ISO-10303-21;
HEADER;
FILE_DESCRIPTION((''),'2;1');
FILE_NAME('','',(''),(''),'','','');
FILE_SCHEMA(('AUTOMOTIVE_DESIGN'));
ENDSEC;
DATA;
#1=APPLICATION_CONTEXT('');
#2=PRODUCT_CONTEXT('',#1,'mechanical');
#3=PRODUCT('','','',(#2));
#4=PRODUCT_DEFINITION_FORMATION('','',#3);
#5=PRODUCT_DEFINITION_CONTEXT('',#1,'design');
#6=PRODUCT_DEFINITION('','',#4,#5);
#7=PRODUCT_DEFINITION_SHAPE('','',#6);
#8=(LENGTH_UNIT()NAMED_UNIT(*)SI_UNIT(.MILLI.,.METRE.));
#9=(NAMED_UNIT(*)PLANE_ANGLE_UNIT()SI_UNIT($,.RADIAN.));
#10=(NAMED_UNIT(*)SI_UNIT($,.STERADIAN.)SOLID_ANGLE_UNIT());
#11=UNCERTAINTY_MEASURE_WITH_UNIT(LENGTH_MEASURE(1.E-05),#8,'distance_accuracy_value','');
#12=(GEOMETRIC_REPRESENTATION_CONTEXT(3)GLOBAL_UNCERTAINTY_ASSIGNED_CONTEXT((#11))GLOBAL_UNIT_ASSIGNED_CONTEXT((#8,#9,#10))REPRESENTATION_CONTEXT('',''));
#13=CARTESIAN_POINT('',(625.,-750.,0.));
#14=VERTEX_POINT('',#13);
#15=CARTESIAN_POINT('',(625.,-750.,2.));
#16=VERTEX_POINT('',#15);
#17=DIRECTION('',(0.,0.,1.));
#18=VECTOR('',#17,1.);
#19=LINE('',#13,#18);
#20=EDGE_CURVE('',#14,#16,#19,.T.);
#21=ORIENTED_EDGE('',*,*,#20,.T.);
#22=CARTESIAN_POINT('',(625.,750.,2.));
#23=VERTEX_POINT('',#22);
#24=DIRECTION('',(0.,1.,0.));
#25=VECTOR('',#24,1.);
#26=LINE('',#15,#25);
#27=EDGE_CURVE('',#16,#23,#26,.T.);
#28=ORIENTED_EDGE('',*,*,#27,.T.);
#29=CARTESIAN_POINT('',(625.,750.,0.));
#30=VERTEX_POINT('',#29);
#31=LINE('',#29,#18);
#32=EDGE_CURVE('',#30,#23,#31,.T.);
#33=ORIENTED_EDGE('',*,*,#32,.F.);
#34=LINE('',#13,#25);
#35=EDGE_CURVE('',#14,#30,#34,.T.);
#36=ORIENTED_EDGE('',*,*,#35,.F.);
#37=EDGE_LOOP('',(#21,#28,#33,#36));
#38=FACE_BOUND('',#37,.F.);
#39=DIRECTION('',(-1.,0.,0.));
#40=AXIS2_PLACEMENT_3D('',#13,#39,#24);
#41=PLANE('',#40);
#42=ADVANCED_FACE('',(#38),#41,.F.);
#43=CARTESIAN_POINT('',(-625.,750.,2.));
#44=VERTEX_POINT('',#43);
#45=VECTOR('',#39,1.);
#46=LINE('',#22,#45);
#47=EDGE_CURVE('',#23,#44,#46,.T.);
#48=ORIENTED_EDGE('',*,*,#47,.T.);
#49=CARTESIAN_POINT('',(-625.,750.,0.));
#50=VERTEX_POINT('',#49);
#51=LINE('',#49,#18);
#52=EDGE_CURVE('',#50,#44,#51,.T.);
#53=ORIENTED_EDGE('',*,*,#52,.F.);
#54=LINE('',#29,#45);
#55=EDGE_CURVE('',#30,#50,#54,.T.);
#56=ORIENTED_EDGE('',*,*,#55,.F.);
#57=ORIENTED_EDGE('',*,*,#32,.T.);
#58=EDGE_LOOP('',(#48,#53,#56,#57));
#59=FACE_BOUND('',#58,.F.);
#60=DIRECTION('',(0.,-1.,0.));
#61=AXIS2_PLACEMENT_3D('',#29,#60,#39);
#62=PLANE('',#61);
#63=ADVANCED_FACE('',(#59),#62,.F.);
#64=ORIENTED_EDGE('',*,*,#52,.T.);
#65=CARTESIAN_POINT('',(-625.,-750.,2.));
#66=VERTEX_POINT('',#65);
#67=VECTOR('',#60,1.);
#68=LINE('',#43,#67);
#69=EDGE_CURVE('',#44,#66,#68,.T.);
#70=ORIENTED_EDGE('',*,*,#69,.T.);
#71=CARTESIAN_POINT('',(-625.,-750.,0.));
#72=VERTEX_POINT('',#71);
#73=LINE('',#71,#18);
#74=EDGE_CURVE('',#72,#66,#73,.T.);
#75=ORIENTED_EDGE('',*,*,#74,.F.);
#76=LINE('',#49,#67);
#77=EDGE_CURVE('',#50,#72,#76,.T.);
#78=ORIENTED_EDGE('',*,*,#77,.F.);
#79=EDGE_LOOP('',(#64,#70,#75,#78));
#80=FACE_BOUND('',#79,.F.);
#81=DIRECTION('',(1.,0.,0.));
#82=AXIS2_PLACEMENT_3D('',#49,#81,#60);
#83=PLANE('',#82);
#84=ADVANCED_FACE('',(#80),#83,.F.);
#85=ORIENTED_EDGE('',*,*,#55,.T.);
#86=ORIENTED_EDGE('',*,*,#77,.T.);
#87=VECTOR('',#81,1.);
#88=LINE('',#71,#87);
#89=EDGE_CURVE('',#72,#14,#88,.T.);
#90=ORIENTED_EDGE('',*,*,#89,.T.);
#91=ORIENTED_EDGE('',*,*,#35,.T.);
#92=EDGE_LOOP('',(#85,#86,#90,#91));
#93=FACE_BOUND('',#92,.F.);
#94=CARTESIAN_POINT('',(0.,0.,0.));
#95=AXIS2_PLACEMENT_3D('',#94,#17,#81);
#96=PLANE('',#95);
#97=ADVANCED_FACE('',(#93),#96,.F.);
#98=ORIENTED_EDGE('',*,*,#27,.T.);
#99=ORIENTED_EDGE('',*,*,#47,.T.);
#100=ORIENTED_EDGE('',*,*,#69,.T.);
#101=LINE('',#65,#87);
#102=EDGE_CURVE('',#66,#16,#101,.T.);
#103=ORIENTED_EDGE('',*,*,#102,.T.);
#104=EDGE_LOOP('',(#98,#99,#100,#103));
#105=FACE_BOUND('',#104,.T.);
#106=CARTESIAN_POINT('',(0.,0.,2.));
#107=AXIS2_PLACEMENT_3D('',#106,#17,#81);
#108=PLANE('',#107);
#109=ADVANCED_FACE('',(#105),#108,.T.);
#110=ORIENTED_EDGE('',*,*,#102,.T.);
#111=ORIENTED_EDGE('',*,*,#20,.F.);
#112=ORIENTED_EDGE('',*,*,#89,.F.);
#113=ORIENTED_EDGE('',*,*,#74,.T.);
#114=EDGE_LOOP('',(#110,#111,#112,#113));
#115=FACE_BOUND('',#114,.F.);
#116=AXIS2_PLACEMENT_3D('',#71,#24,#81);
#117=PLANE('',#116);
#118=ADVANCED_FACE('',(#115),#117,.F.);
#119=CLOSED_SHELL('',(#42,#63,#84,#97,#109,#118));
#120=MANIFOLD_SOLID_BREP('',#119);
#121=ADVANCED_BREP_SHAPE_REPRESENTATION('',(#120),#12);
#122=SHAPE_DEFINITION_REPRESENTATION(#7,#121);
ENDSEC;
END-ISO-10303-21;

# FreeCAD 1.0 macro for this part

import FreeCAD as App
import Part
import Sketcher


def add_polygon(sketch, points):
    """Adds a closed chain of lines whose ends are joined by coincident constraints."""
    first, n = sketch.GeometryCount, len(points)
    for a, b in zip(points, points[1:] + points[:1]):
        sketch.addGeometry(Part.LineSegment(App.Vector(*a, 0), App.Vector(*b, 0)), False)
    for i in range(n):
        sketch.addConstraint(Sketcher.Constraint("Coincident", first + i, 2, first + (i + 1) % n, 1))

doc = App.newDocument("Part")
body = doc.addObject("PartDesign::Body", "Body")

# Sketch on XY plane
sketch1 = body.newObject("Sketcher::SketchObject", "Sketch")
sketch1.AttachmentSupport = (doc.getObject("XY_Plane"), [""])
sketch1.MapMode = "FlatFace"
add_polygon(sketch1, [(-625, -750), (625, -750), (625, 750), (-625, 750)])  # lines 0-3
sketch1.addConstraint(Sketcher.Constraint("Horizontal", 0))
sketch1.addConstraint(Sketcher.Constraint("Vertical", 1))
sketch1.addConstraint(Sketcher.Constraint("Horizontal", 2))
sketch1.addConstraint(Sketcher.Constraint("Vertical", 3))
sketch1.addConstraint(Sketcher.Constraint("Symmetric", 0, 2, 2, 2, -1, 1))
sketch1.addConstraint(Sketcher.Constraint("DistanceX", 0, 1, 0, 2, 1250.0))
sketch1.addConstraint(Sketcher.Constraint("DistanceY", 1, 1, 1, 2, 1500.0))
pad1 = body.newObject("PartDesign::Pad", "Pad")
pad1.Profile = sketch1
pad1.Length = 2

doc.recompute()
